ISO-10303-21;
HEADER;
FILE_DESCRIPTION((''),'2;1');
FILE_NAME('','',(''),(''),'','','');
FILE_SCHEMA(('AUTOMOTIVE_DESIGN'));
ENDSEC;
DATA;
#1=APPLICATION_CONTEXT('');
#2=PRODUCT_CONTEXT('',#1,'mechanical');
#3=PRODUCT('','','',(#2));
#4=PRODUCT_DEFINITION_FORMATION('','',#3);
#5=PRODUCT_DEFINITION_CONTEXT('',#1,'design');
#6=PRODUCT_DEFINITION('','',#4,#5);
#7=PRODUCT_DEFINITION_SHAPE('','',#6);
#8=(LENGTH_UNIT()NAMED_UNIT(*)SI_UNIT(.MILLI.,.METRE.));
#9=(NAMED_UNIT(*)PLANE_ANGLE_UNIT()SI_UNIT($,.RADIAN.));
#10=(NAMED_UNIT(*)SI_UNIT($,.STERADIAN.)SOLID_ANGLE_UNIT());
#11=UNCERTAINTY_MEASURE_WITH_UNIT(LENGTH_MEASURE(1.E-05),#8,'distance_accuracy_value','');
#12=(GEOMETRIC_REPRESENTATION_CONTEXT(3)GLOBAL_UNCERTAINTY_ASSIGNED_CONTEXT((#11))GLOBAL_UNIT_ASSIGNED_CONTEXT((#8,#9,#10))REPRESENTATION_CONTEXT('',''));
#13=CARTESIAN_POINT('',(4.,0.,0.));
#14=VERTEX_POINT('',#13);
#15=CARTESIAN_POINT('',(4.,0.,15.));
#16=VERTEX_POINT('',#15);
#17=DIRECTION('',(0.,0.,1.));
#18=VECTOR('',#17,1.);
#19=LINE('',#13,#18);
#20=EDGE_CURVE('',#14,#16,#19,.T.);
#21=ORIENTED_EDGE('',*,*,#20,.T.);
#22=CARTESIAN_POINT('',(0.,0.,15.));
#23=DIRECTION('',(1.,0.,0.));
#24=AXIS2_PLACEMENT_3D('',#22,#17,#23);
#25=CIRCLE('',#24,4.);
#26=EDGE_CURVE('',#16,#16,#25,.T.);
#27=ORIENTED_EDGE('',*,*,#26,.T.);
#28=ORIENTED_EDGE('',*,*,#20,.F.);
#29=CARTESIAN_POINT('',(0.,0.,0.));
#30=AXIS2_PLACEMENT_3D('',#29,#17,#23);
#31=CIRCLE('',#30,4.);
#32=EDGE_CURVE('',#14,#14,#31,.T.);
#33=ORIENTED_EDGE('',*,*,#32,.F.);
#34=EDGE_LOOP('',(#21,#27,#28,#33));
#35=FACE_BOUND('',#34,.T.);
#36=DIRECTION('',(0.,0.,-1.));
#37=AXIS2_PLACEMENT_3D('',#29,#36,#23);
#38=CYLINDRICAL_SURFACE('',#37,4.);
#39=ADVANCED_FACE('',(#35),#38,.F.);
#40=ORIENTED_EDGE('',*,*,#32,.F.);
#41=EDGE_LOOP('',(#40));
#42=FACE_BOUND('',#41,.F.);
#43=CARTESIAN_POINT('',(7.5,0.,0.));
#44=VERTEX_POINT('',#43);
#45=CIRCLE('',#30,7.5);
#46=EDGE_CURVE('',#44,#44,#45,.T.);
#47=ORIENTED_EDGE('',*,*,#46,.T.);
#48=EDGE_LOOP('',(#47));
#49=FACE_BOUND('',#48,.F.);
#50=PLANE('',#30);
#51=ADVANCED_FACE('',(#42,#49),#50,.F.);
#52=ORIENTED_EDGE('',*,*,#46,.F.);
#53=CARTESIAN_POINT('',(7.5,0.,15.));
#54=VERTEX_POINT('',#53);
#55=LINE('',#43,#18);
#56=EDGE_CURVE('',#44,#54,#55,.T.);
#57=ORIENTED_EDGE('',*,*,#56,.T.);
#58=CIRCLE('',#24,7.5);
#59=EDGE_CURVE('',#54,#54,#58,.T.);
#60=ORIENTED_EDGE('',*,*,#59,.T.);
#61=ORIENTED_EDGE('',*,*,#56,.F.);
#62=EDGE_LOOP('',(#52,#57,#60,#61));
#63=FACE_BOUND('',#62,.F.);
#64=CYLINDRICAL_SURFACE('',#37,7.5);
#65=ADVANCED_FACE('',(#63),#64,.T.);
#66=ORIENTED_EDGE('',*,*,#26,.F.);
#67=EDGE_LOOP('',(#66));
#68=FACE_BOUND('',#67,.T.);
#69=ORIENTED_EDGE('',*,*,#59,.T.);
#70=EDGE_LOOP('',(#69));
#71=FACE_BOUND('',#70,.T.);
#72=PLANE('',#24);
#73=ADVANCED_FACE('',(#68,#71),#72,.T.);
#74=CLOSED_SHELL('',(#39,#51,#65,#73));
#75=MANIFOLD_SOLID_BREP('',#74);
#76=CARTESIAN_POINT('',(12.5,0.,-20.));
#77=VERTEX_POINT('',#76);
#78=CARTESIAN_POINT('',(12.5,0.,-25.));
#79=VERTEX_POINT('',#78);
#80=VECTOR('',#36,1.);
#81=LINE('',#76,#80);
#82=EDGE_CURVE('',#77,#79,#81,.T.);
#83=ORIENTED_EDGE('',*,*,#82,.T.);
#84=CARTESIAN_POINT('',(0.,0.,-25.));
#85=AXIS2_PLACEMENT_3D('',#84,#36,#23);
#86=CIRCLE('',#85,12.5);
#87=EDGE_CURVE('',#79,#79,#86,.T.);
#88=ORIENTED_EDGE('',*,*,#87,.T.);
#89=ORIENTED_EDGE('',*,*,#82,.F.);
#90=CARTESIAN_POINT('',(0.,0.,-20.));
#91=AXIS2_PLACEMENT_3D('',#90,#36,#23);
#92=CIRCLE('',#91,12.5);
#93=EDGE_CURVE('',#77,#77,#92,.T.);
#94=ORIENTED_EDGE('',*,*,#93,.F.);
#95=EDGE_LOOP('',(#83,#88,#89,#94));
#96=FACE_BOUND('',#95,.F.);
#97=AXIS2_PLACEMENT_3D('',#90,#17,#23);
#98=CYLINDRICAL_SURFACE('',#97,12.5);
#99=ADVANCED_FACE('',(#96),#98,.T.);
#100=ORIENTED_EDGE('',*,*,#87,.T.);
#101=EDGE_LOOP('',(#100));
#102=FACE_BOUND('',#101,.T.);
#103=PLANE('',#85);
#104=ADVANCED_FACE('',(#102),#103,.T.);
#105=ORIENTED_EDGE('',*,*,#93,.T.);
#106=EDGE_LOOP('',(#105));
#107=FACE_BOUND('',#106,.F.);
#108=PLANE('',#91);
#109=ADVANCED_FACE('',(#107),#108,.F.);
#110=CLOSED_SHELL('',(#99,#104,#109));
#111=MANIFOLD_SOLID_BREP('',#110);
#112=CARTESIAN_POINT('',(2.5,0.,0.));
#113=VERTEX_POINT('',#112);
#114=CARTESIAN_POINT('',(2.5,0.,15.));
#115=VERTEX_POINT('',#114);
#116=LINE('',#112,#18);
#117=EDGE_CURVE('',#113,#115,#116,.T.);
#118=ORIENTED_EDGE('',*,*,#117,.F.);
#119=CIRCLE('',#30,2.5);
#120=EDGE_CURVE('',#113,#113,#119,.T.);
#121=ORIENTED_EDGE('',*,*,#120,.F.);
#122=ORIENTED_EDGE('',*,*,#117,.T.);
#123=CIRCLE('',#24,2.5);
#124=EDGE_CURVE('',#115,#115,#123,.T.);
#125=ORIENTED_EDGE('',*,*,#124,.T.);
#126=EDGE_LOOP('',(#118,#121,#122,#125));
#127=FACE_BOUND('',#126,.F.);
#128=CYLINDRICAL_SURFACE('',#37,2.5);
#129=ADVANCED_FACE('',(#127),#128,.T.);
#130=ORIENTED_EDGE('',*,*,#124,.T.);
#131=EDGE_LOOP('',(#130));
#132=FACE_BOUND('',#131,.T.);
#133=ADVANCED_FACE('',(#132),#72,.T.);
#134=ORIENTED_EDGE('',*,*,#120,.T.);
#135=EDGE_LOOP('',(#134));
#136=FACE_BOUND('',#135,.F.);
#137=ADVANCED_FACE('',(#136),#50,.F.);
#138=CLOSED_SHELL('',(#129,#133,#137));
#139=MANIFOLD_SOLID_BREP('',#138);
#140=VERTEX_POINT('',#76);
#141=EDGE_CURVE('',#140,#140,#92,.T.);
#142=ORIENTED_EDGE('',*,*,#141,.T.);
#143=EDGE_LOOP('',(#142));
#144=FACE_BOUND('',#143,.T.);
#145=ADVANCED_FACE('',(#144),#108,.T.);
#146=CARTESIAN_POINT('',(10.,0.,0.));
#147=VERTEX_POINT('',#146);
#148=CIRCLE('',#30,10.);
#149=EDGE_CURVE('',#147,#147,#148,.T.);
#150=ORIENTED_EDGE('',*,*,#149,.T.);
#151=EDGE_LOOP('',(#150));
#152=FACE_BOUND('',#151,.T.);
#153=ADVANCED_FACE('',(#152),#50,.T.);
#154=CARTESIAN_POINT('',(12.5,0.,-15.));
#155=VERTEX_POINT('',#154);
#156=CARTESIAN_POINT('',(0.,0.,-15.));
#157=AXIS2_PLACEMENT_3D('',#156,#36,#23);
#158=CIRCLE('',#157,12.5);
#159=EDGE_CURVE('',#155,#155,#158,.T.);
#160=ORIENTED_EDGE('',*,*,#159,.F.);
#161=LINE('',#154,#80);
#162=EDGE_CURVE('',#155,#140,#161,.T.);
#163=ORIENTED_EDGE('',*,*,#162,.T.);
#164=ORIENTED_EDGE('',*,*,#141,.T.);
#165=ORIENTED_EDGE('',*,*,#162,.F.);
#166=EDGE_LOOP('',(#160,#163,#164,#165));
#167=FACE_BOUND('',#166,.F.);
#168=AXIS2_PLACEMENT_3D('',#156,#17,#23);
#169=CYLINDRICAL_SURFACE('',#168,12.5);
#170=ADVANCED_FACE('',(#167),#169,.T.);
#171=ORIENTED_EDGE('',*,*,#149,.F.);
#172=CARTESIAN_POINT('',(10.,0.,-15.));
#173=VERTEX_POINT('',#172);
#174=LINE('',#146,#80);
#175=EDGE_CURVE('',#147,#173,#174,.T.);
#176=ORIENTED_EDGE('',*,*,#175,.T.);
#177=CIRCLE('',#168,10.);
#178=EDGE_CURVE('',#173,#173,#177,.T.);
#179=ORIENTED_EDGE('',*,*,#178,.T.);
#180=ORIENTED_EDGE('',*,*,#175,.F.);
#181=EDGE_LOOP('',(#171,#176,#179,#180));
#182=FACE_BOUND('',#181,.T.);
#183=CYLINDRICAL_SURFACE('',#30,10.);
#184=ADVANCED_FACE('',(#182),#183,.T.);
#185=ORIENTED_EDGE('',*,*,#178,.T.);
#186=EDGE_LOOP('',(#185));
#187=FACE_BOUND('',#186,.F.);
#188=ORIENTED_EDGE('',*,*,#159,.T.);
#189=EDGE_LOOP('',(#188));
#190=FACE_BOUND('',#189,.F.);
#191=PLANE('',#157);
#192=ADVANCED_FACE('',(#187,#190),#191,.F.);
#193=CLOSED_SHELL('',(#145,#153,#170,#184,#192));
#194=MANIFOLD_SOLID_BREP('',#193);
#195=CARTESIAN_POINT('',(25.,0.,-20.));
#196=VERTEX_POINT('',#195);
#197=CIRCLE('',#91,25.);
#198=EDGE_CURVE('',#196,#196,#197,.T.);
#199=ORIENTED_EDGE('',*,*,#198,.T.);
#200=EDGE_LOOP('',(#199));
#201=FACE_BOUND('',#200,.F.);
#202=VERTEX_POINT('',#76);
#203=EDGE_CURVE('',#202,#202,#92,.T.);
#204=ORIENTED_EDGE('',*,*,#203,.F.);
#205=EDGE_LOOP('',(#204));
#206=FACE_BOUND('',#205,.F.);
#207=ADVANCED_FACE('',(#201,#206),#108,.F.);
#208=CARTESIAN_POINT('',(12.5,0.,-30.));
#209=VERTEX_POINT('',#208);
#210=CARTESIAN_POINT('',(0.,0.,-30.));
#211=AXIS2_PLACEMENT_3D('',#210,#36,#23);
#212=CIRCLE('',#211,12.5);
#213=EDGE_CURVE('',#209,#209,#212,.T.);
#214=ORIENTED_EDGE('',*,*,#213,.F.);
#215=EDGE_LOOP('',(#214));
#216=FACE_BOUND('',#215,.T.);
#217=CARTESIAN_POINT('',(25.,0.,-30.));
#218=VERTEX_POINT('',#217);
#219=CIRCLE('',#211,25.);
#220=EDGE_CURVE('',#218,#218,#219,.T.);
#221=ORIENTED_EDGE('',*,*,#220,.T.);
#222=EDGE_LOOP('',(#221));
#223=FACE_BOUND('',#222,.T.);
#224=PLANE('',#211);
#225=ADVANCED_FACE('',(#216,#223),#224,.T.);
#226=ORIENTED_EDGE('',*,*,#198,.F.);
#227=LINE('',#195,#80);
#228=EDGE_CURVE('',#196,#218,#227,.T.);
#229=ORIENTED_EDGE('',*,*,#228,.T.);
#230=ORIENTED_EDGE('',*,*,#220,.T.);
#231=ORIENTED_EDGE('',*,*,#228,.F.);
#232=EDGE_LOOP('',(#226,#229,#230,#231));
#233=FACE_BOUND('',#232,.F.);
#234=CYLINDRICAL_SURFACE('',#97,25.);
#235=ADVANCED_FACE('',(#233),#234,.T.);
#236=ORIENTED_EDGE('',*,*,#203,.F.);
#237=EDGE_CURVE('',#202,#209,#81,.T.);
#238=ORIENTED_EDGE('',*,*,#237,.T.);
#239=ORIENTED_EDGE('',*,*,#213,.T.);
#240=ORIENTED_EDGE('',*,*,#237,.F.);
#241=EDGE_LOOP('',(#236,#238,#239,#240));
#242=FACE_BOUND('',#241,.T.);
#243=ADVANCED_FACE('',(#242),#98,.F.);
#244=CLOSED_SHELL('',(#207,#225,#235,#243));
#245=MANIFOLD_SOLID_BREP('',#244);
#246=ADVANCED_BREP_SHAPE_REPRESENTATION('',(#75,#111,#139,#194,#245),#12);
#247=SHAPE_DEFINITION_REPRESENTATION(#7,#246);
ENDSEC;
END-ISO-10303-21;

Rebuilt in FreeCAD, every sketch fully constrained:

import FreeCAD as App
import Part
import Sketcher

V = App.Vector
Q = App.Units.Quantity

doc = App.newDocument("Part")
body = doc.addObject("PartDesign::Body", "Body")
body.AllowCompound = True

sketch1 = doc.addObject("Sketcher::SketchObject", "Sketch")
body.addObject(sketch1)
sketch1.AttachmentSupport = (doc.XY_Plane, [""])
sketch1.MapMode = "FlatFace"
sketch1.addGeometry([
    Part.Circle(V(0, 0, 0), V(0, 0, 1), 7.5),
    Part.Circle(V(0, 0, 0), V(0, 0, 1), 4),
    Part.Circle(V(0, 0, 0), V(0, 0, 1), 2.5),
], False)
sketch1.addConstraint([
    Sketcher.Constraint("Coincident", 0, 3, -1, 1),
    Sketcher.Constraint("Coincident", 1, 3, -1, 1),
    Sketcher.Constraint("Coincident", 2, 3, -1, 1),
    Sketcher.Constraint("Diameter", 0, Q("15 mm")),
    Sketcher.Constraint("Diameter", 1, Q("8 mm")),
    Sketcher.Constraint("Diameter", 2, Q("5 mm")),
])
pad1 = doc.addObject("PartDesign::Pad", "Pad")
body.addObject(pad1)
pad1.Profile = sketch1
pad1.Length = 15
body2 = doc.addObject("PartDesign::Body", "Body001")
body2.AllowCompound = True

sketch2 = doc.addObject("Sketcher::SketchObject", "Sketch001")
body2.addObject(sketch2)
sketch2.AttachmentSupport = (doc.getObject("XY_Plane001"), [""])
sketch2.MapMode = "FlatFace"
sketch2.addGeometry(Part.Circle(V(0, 0, 0), V(0, 0, 1), 10), False)
sketch2.addConstraint([
    Sketcher.Constraint("Coincident", 0, 3, -1, 1),
    Sketcher.Constraint("Diameter", 0, Q("20 mm")),
])
pad2 = doc.addObject("PartDesign::Pad", "Pad001")
body2.addObject(pad2)
pad2.Profile = sketch2
pad2.Length = 15
pad2.Reversed = True

sketch3 = doc.addObject("Sketcher::SketchObject", "Sketch002")
body2.addObject(sketch3)
sketch3.AttachmentSupport = (doc.getObject("XY_Plane001"), [""])
sketch3.MapMode = "FlatFace"
sketch3.AttachmentOffset = App.Placement(V(0, 0, -15), App.Rotation())
sketch3.addGeometry(Part.Circle(V(0, 0, 0), V(0, 0, 1), 12.5), False)
sketch3.addConstraint([
    Sketcher.Constraint("Coincident", 0, 3, -1, 1),
    Sketcher.Constraint("Diameter", 0, Q("25 mm")),
])
pad3 = doc.addObject("PartDesign::Pad", "Pad002")
body2.addObject(pad3)
pad3.Profile = sketch3
pad3.Length = 5
pad3.Reversed = True

sketch4 = doc.addObject("Sketcher::SketchObject", "Sketch003")
body2.addObject(sketch4)
sketch4.AttachmentSupport = (doc.getObject("XY_Plane001"), [""])
sketch4.MapMode = "FlatFace"
sketch4.AttachmentOffset = App.Placement(V(0, 0, -20), App.Rotation())
sketch4.addGeometry([
    Part.Circle(V(0, 0, 0), V(0, 0, 1), 25),
    Part.Circle(V(0, 0, 0), V(0, 0, 1), 12.5),
], False)
sketch4.addConstraint([
    Sketcher.Constraint("Coincident", 0, 3, -1, 1),
    Sketcher.Constraint("Coincident", 1, 3, -1, 1),
    Sketcher.Constraint("Diameter", 0, Q("50 mm")),
    Sketcher.Constraint("Diameter", 1, Q("25 mm")),
])
pad4 = doc.addObject("PartDesign::Pad", "Pad003")
body2.addObject(pad4)
pad4.Profile = sketch4
pad4.Length = 10
pad4.Reversed = True
body3 = doc.addObject("PartDesign::Body", "Body002")

sketch5 = doc.addObject("Sketcher::SketchObject", "Sketch004")
body3.addObject(sketch5)
sketch5.AttachmentSupport = (doc.getObject("XY_Plane002"), [""])
sketch5.MapMode = "FlatFace"
sketch5.AttachmentOffset = App.Placement(V(0, 0, -20), App.Rotation())
sketch5.addGeometry(Part.Circle(V(0, 0, 0), V(0, 0, 1), 12.5), False)
sketch5.addConstraint([
    Sketcher.Constraint("Coincident", 0, 3, -1, 1),
    Sketcher.Constraint("Diameter", 0, Q("25 mm")),
])
pad5 = doc.addObject("PartDesign::Pad", "Pad004")
body3.addObject(pad5)
pad5.Profile = sketch5
pad5.Length = 5
pad5.Reversed = True

doc.recompute()
